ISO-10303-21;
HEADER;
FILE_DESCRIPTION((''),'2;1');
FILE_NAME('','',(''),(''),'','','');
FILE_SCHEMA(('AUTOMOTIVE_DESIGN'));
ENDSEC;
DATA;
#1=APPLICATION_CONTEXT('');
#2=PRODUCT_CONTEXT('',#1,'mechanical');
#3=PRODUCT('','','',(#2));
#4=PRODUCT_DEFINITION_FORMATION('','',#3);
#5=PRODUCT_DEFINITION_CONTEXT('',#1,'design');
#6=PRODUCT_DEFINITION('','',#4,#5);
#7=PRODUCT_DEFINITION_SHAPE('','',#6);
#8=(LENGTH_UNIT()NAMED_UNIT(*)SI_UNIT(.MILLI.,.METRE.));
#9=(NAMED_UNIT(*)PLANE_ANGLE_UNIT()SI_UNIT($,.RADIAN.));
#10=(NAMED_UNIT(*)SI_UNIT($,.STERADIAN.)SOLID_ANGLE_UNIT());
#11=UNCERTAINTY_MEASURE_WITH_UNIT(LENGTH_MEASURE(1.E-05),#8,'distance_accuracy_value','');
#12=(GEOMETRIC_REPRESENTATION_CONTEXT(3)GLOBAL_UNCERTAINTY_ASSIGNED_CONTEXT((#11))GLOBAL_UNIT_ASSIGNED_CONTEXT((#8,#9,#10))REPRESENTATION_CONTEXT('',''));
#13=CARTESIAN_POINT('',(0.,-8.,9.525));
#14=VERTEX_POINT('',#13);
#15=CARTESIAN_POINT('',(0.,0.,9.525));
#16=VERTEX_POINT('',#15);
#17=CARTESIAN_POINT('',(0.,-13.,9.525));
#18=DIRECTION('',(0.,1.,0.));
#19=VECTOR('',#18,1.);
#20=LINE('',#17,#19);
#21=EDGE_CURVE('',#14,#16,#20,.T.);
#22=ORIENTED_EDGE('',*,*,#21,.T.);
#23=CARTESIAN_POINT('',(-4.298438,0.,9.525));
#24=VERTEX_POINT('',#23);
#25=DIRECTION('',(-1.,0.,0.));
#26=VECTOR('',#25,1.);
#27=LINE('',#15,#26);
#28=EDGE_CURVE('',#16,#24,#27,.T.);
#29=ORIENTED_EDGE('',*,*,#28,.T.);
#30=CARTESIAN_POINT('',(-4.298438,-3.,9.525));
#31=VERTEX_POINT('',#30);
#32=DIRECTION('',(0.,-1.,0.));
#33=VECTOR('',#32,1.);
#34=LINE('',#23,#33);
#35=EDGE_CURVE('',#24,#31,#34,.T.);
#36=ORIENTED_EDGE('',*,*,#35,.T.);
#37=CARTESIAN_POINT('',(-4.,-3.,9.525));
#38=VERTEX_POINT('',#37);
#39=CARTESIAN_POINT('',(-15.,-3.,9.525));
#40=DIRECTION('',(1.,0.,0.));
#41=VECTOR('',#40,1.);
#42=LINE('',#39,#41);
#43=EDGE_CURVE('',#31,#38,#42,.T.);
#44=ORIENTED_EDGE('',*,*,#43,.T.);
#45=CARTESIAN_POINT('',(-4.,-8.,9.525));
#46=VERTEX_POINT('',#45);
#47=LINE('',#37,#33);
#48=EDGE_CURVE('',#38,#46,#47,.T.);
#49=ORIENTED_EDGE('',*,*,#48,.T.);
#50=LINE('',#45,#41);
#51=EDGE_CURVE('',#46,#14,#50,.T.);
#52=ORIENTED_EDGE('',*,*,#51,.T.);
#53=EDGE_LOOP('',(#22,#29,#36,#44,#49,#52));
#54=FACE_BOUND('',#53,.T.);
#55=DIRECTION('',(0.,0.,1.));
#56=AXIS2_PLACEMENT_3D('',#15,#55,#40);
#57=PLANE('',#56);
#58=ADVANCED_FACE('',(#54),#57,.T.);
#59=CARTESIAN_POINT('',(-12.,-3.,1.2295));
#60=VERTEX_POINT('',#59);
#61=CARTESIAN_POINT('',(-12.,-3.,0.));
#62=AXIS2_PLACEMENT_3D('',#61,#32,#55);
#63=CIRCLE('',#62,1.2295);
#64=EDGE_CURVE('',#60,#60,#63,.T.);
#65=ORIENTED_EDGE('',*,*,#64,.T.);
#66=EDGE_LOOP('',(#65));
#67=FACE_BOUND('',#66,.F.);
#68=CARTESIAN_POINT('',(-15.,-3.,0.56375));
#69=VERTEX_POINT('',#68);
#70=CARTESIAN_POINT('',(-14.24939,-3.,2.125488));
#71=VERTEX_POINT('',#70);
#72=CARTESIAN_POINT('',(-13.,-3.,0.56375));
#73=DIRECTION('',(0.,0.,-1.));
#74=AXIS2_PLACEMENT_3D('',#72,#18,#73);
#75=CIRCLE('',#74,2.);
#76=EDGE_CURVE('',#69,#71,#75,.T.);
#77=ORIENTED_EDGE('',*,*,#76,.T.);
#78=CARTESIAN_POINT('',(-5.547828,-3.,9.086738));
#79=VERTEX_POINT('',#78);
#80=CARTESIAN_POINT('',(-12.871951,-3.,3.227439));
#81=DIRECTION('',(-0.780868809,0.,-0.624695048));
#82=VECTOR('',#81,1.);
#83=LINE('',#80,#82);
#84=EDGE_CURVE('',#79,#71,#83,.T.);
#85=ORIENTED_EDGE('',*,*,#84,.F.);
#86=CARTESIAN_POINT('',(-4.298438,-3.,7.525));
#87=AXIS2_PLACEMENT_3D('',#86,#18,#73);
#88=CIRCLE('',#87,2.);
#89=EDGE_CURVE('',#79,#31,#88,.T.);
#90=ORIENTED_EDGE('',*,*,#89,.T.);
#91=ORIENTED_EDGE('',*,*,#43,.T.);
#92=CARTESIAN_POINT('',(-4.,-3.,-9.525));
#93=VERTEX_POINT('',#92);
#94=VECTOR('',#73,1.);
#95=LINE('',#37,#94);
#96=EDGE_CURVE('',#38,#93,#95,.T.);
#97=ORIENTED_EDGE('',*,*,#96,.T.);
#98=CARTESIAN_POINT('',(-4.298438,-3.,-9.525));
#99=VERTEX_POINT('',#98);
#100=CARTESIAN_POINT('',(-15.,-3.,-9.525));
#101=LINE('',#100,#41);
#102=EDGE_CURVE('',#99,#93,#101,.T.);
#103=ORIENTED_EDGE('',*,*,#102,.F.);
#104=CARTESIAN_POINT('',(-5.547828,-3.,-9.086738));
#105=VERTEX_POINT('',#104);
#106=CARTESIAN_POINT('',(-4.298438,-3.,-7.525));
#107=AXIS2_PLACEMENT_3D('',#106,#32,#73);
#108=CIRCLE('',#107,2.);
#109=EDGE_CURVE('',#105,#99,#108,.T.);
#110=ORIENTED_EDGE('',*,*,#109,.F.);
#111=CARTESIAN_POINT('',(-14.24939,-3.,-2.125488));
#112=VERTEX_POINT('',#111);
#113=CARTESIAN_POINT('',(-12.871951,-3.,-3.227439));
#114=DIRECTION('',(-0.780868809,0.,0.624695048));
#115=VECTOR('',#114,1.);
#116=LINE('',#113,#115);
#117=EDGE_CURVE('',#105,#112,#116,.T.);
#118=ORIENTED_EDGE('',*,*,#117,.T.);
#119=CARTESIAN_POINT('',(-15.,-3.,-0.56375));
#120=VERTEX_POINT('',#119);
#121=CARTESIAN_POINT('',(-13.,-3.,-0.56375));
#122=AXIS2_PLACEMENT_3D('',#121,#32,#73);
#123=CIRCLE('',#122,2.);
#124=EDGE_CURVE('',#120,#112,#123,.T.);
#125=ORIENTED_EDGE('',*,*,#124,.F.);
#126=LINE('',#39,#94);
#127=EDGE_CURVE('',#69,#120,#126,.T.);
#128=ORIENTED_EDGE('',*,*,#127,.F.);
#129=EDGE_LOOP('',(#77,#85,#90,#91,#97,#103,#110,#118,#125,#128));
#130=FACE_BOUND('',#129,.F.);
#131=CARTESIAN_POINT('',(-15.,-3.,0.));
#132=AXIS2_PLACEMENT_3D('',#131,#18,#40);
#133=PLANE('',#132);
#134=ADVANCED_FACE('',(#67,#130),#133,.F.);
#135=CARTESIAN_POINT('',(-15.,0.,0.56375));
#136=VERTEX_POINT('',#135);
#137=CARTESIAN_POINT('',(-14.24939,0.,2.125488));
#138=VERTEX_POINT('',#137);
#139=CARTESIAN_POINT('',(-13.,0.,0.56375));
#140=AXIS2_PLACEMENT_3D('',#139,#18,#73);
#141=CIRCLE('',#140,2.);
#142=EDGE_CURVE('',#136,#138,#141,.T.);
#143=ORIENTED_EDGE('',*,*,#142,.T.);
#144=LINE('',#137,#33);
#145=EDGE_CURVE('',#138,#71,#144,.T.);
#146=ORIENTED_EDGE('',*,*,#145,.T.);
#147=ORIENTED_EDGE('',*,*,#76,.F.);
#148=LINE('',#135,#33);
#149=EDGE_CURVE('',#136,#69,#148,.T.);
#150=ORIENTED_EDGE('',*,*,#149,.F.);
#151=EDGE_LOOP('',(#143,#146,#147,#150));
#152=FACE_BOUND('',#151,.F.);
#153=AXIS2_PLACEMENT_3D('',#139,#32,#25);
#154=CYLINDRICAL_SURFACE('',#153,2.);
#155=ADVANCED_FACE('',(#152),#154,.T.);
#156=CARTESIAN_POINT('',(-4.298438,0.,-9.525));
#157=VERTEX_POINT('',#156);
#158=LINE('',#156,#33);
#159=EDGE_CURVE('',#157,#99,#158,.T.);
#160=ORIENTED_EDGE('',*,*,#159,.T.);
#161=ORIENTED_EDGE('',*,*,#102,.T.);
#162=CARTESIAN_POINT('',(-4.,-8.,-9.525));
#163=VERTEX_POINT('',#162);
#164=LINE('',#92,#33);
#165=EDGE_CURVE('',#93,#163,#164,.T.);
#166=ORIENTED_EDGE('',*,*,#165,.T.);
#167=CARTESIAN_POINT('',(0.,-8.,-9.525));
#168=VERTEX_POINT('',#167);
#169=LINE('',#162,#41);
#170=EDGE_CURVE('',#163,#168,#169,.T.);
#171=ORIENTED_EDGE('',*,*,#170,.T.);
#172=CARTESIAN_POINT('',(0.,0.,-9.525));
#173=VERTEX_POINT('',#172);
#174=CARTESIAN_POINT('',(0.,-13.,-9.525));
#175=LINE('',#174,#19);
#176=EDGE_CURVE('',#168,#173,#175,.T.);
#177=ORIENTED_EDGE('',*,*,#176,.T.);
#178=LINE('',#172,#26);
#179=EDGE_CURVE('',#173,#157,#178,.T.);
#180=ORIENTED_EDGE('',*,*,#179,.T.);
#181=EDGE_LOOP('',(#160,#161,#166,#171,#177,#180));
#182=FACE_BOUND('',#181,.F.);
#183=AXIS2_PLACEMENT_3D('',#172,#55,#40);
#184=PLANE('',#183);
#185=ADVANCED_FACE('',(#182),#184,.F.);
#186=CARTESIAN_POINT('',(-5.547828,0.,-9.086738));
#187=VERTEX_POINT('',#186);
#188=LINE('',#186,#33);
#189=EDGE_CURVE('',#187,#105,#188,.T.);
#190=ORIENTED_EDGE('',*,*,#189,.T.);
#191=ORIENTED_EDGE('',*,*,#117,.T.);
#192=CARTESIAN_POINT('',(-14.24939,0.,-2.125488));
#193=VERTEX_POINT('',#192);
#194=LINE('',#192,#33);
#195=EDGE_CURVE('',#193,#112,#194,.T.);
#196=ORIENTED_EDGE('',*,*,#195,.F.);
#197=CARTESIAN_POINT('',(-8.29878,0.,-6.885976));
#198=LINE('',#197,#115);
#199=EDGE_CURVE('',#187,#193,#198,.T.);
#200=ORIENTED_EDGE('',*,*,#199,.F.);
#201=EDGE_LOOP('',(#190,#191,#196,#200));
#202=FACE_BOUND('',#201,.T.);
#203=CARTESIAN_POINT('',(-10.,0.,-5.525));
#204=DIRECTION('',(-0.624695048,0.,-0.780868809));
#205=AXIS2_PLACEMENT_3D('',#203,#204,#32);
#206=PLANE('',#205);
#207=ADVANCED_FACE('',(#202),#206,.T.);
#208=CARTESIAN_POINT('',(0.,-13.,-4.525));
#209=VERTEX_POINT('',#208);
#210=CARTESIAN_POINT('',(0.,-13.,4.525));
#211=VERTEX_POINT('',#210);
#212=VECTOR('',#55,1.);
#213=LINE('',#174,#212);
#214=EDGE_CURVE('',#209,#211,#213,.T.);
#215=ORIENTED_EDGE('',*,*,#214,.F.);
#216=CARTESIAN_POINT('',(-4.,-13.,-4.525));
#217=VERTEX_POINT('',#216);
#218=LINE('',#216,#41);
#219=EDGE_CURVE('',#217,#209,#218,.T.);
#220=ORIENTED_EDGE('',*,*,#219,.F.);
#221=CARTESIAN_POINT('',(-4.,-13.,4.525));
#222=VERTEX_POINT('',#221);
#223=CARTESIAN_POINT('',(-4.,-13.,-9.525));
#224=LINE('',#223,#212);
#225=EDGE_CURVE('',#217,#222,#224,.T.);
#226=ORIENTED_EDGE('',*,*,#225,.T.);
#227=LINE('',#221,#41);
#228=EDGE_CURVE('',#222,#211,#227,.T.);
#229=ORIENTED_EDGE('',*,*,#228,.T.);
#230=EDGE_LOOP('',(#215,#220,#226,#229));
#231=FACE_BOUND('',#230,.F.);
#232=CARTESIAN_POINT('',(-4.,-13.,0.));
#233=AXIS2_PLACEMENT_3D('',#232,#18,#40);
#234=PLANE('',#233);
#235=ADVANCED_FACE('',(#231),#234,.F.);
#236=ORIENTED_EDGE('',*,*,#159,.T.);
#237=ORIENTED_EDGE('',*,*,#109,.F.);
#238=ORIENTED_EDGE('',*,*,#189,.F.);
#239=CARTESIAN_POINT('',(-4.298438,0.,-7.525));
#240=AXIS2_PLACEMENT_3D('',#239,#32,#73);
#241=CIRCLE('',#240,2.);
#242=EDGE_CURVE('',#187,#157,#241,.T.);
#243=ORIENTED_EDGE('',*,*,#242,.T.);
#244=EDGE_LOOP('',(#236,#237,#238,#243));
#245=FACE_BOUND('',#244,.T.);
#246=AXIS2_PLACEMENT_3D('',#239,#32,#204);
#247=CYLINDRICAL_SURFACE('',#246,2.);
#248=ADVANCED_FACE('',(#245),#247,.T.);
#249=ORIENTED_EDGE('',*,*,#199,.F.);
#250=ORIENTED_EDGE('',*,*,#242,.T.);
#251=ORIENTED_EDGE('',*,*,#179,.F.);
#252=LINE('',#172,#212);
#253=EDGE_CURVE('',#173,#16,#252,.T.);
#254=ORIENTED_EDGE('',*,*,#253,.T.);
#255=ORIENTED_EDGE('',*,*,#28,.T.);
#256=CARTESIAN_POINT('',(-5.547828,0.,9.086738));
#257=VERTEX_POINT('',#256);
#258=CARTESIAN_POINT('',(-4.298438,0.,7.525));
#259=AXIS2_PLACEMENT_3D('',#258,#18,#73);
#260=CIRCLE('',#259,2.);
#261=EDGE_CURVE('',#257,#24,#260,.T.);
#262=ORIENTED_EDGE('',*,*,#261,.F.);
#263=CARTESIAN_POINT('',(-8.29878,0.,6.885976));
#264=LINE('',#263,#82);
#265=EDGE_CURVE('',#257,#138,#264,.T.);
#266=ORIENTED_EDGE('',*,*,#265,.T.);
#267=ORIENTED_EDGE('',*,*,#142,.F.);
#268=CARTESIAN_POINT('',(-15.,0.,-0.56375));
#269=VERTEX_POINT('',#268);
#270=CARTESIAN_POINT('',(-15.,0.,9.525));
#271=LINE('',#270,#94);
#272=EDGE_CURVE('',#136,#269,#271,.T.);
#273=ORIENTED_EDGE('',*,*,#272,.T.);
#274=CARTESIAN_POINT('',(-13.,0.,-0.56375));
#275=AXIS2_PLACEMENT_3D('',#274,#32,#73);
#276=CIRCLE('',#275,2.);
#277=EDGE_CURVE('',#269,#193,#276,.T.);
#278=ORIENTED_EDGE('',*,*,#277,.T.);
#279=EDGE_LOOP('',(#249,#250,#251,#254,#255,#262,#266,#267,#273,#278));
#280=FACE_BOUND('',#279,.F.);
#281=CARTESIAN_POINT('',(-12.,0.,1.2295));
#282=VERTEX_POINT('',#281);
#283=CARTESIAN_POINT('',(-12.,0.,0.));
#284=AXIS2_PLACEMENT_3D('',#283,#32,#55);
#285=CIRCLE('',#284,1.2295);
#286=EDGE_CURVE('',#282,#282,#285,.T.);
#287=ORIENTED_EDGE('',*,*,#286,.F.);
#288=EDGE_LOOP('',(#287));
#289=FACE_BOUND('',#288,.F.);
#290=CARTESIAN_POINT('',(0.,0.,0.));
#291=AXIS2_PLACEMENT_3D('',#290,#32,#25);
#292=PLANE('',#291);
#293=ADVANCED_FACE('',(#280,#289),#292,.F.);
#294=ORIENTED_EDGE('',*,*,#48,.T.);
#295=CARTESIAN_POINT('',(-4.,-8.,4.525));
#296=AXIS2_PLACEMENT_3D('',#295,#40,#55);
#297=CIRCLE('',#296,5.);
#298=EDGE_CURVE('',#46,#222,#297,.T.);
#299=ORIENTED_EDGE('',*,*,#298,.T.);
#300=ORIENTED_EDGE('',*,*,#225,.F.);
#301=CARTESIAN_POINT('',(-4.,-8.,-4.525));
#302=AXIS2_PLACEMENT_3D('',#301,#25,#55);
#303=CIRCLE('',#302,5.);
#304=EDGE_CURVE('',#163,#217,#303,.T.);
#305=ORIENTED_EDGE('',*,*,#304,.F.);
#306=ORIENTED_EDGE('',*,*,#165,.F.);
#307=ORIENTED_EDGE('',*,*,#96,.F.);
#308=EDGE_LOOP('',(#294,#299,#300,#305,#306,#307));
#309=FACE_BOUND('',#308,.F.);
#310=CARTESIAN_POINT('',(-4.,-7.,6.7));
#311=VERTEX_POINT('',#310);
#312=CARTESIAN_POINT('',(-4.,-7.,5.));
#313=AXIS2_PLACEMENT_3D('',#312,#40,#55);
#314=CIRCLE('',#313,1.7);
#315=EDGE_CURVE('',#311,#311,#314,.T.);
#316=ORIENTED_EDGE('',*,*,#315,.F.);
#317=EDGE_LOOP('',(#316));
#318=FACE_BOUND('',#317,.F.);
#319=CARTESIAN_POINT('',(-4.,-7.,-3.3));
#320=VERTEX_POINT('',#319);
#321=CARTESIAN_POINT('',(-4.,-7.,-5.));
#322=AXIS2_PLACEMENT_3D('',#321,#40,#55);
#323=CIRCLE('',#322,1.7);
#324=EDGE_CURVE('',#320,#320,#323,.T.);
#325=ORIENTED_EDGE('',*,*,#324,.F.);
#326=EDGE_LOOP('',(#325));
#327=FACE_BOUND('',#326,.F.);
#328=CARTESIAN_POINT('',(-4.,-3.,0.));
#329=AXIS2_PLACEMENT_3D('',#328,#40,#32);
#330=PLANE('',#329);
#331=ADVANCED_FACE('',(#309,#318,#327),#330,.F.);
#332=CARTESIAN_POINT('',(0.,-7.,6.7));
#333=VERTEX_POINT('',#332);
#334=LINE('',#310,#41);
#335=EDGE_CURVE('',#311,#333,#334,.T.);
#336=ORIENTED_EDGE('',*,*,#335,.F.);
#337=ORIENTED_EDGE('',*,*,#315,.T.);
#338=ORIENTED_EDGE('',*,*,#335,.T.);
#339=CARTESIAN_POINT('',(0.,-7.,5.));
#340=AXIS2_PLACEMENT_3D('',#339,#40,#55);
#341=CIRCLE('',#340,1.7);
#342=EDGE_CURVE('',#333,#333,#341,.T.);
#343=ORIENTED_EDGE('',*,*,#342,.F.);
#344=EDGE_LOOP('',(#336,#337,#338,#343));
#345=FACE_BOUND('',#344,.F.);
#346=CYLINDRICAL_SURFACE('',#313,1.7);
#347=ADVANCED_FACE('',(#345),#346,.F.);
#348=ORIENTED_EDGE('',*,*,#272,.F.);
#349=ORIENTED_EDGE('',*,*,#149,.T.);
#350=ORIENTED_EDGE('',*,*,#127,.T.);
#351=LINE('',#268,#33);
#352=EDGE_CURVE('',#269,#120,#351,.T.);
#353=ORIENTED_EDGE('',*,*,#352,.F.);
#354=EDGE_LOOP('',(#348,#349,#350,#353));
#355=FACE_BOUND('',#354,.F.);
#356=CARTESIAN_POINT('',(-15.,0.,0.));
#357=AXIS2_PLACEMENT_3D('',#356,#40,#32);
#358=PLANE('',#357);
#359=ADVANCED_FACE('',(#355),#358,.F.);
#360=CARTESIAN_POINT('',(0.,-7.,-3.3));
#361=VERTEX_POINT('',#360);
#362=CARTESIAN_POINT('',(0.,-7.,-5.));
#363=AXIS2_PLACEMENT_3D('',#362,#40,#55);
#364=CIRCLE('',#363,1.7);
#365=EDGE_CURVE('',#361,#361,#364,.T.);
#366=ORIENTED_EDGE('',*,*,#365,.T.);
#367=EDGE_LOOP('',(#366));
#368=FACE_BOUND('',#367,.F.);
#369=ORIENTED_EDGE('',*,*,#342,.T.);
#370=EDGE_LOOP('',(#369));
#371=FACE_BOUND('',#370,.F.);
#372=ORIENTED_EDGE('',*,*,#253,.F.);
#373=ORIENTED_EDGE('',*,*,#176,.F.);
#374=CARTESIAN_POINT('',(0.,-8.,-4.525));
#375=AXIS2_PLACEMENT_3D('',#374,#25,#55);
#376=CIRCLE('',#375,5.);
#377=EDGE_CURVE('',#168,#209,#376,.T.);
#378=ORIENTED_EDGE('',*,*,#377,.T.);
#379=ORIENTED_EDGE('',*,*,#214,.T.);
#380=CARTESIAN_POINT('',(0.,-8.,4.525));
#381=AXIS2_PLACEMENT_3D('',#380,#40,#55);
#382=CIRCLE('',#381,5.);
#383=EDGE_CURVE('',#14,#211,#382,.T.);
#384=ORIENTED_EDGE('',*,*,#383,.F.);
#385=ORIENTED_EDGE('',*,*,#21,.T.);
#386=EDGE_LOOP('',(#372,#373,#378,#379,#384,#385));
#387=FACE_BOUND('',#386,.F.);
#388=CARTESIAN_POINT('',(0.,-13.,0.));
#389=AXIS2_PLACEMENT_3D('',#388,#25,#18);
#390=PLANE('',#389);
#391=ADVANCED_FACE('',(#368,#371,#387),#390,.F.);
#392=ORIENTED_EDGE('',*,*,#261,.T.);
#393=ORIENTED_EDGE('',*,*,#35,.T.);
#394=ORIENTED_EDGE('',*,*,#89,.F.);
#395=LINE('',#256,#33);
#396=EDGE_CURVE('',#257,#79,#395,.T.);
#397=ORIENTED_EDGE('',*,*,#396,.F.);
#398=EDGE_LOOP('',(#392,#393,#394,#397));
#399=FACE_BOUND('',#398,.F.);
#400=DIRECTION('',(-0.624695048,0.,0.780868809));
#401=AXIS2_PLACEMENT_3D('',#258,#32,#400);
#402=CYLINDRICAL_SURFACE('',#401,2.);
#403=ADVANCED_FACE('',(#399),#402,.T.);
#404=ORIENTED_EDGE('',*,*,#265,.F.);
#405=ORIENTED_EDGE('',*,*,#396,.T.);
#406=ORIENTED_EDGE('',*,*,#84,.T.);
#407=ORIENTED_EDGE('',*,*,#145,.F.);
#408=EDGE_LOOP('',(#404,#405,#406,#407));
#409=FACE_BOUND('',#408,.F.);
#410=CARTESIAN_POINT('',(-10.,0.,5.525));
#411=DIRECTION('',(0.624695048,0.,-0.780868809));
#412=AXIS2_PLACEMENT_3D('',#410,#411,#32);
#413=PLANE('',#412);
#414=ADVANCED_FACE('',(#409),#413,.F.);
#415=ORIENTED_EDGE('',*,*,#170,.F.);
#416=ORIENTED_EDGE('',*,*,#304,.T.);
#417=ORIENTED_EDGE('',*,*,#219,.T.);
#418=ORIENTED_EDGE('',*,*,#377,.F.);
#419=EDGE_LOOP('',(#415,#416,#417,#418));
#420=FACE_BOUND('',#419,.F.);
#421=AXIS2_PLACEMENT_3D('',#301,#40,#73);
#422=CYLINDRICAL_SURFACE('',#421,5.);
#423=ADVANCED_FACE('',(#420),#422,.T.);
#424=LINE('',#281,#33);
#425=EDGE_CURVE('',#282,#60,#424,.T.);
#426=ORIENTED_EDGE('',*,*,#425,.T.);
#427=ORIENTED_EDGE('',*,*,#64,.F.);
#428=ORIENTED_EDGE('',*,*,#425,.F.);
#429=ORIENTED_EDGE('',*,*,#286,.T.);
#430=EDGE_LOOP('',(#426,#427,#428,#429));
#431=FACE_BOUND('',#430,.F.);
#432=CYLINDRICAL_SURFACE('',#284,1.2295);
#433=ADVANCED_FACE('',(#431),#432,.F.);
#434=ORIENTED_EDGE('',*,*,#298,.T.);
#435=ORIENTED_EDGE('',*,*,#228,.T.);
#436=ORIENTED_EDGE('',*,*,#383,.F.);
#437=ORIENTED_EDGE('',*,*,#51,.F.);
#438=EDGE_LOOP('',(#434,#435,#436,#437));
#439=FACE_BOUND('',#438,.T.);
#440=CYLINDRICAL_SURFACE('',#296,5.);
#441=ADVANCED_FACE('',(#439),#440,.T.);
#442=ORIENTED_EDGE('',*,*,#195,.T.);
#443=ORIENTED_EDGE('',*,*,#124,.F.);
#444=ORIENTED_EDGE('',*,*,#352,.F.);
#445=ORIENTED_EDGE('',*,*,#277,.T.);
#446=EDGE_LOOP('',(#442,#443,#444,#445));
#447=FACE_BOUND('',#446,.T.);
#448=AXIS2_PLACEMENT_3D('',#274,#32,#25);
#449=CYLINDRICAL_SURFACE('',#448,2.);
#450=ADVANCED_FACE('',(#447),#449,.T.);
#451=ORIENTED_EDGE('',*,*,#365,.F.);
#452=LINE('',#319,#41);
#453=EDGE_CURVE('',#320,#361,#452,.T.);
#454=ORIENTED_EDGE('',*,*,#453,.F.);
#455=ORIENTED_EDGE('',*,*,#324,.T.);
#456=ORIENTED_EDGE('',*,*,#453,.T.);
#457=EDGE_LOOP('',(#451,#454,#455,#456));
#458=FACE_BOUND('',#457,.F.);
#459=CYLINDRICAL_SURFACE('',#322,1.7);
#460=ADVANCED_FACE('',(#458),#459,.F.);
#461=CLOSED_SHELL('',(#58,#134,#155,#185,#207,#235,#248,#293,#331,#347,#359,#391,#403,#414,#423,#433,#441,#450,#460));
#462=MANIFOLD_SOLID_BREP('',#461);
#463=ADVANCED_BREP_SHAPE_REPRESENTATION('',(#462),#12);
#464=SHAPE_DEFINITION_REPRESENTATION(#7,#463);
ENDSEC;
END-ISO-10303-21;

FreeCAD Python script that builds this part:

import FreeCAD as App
import Part
import Sketcher
Q = App.Units.Quantity


def edges_at(feature, points):
    """Names of the edges that pass closest to the given points."""
    edges = feature.Shape.Edges
    near = lambda p: min(range(len(edges)), key=lambda i: edges[i].distToShape(Part.Vertex(*p))[0])
    return sorted({f"Edge{near(p) + 1}" for p in points})


def add_polygon(sketch, points):
    """Adds a closed chain of lines whose ends are joined by coincident constraints."""
    first, n = sketch.GeometryCount, len(points)
    for a, b in zip(points, points[1:] + points[:1]):
        sketch.addGeometry(Part.LineSegment(App.Vector(*a, 0), App.Vector(*b, 0)), False)
    for i in range(n):
        sketch.addConstraint(Sketcher.Constraint("Coincident", first + i, 2, first + (i + 1) % n, 1))

doc = App.newDocument("Part")
body = doc.addObject("PartDesign::Body", "Body")

# Sketch on XY plane
sketch1 = body.newObject("Sketcher::SketchObject", "Sketch")
sketch1.AttachmentSupport = (doc.getObject("XY_Plane"), [""])
sketch1.MapMode = "FlatFace"
add_polygon(sketch1, [(-4, -3), (-4, -13), (0, -13), (0, 0), (-15, 0), (-15, -3)])  # lines 0-5
sketch1.addConstraint([
    Sketcher.Constraint("Vertical", 0),
    Sketcher.Constraint("Horizontal", 1),
    Sketcher.Constraint("Vertical", 2),
    Sketcher.Constraint("Horizontal", 3),
    Sketcher.Constraint("Vertical", 4),
    Sketcher.Constraint("Horizontal", 5),
    Sketcher.Constraint("Coincident", 2, 2, -1, 1),
    Sketcher.Constraint("DistanceX", 1, 1, 1, 2, Q("4 mm")),
    Sketcher.Constraint("DistanceX", 3, 2, 3, 1, Q("15 mm")),
    Sketcher.Constraint("DistanceY", 0, 2, 0, 1, Q("10 mm")),
    Sketcher.Constraint("DistanceY", 4, 2, 4, 1, Q("3 mm")),
])
pad1 = body.newObject("PartDesign::Pad", "Pad")
pad1.Profile = sketch1
pad1.Length = 19.05
pad1.Midplane = True

# Sketch on YZ plane
sketch2 = body.newObject("Sketcher::SketchObject", "Sketch001")
sketch2.AttachmentSupport = (doc.getObject("YZ_Plane"), [""])
sketch2.MapMode = "FlatFace"
sketch2.AttachmentOffset = App.Placement(App.Vector(0, 0, -4), App.Rotation())
sketch2.addGeometry([
    Part.Circle(App.Vector(-7, -5, 0), App.Vector(0, 0, 1), 1.7),
    Part.Circle(App.Vector(-7, 5, 0), App.Vector(0, 0, 1), 1.7),
], False)
sketch2.addConstraint([
    Sketcher.Constraint("Equal", 0, 1),
    Sketcher.Constraint("Symmetric", 0, 3, 1, 3, -1),
    Sketcher.Constraint("Diameter", 0, Q("3.4 mm")),
    Sketcher.Constraint("DistanceX", 0, 3, -1, 1, Q("7 mm")),
    Sketcher.Constraint("DistanceY", 0, 3, -1, 1, Q("5 mm")),
])
doc.recompute()
hole = body.newObject("PartDesign::Hole", "Hole")
hole.Profile = sketch2
hole.ThreadType = "None"
hole.Diameter = 3.4
hole.DepthType = "Dimension"
hole.Depth = 8.7884
hole.DrillPoint = "Flat"
hole.Reversed = True

# Sketch on XZ plane
sketch3 = body.newObject("Sketcher::SketchObject", "Sketch002")
sketch3.AttachmentSupport = (doc.getObject("XZ_Plane"), [""])
sketch3.MapMode = "FlatFace"
sketch3.addGeometry(Part.Circle(App.Vector(-12, 0, 0), App.Vector(0, 0, 1), 1.2), False)
sketch3.addConstraint([
    Sketcher.Constraint("PointOnObject", 0, 3, -1),
    Sketcher.Constraint("Diameter", 0, Q("2.459 mm")),
    Sketcher.Constraint("DistanceX", 0, 3, -1, 1, Q("12 mm")),
])
doc.recompute()
hole2 = body.newObject("PartDesign::Hole", "Hole001")
hole2.Profile = sketch3
hole2.ThreadType = "None"
hole2.Diameter = 2.459
hole2.DepthType = "Dimension"
hole2.Depth = 8.8
hole2.DrillPoint = "Flat"
hole2.Reversed = True
doc.recompute()

chamfer = body.newObject("PartDesign::Chamfer", "Chamfer")
chamfer.Base = (hole2, edges_at(hole2, [(-15, -1.5, 9.525)]))
chamfer.ChamferType = "Two distances"
chamfer.Size = 10
chamfer.Size2 = 8
doc.recompute()

chamfer2 = body.newObject("PartDesign::Chamfer", "Chamfer001")
chamfer2.Base = (chamfer, edges_at(chamfer, [(-15, -1.5, -9.525)]))
chamfer2.ChamferType = "Two distances"
chamfer2.Size = 10
chamfer2.Size2 = 8
chamfer2.FlipDirection = True
doc.recompute()

fillet = body.newObject("PartDesign::Fillet", "Fillet")
fillet.Base = (chamfer2, edges_at(chamfer2, [
    (-5, -1.5, -9.525),
    (-15, -1.5, -1.525),
    (-15, -1.5, 1.525),
    (-5, -1.5, 9.525),
]))
fillet.Radius = 2
doc.recompute()

fillet2 = body.newObject("PartDesign::Fillet", "Fillet001")
fillet2.Base = (fillet, edges_at(fillet, [(-2, -13, -9.525), (-2, -13, 9.525)]))
fillet2.Radius = 5

doc.recompute()
